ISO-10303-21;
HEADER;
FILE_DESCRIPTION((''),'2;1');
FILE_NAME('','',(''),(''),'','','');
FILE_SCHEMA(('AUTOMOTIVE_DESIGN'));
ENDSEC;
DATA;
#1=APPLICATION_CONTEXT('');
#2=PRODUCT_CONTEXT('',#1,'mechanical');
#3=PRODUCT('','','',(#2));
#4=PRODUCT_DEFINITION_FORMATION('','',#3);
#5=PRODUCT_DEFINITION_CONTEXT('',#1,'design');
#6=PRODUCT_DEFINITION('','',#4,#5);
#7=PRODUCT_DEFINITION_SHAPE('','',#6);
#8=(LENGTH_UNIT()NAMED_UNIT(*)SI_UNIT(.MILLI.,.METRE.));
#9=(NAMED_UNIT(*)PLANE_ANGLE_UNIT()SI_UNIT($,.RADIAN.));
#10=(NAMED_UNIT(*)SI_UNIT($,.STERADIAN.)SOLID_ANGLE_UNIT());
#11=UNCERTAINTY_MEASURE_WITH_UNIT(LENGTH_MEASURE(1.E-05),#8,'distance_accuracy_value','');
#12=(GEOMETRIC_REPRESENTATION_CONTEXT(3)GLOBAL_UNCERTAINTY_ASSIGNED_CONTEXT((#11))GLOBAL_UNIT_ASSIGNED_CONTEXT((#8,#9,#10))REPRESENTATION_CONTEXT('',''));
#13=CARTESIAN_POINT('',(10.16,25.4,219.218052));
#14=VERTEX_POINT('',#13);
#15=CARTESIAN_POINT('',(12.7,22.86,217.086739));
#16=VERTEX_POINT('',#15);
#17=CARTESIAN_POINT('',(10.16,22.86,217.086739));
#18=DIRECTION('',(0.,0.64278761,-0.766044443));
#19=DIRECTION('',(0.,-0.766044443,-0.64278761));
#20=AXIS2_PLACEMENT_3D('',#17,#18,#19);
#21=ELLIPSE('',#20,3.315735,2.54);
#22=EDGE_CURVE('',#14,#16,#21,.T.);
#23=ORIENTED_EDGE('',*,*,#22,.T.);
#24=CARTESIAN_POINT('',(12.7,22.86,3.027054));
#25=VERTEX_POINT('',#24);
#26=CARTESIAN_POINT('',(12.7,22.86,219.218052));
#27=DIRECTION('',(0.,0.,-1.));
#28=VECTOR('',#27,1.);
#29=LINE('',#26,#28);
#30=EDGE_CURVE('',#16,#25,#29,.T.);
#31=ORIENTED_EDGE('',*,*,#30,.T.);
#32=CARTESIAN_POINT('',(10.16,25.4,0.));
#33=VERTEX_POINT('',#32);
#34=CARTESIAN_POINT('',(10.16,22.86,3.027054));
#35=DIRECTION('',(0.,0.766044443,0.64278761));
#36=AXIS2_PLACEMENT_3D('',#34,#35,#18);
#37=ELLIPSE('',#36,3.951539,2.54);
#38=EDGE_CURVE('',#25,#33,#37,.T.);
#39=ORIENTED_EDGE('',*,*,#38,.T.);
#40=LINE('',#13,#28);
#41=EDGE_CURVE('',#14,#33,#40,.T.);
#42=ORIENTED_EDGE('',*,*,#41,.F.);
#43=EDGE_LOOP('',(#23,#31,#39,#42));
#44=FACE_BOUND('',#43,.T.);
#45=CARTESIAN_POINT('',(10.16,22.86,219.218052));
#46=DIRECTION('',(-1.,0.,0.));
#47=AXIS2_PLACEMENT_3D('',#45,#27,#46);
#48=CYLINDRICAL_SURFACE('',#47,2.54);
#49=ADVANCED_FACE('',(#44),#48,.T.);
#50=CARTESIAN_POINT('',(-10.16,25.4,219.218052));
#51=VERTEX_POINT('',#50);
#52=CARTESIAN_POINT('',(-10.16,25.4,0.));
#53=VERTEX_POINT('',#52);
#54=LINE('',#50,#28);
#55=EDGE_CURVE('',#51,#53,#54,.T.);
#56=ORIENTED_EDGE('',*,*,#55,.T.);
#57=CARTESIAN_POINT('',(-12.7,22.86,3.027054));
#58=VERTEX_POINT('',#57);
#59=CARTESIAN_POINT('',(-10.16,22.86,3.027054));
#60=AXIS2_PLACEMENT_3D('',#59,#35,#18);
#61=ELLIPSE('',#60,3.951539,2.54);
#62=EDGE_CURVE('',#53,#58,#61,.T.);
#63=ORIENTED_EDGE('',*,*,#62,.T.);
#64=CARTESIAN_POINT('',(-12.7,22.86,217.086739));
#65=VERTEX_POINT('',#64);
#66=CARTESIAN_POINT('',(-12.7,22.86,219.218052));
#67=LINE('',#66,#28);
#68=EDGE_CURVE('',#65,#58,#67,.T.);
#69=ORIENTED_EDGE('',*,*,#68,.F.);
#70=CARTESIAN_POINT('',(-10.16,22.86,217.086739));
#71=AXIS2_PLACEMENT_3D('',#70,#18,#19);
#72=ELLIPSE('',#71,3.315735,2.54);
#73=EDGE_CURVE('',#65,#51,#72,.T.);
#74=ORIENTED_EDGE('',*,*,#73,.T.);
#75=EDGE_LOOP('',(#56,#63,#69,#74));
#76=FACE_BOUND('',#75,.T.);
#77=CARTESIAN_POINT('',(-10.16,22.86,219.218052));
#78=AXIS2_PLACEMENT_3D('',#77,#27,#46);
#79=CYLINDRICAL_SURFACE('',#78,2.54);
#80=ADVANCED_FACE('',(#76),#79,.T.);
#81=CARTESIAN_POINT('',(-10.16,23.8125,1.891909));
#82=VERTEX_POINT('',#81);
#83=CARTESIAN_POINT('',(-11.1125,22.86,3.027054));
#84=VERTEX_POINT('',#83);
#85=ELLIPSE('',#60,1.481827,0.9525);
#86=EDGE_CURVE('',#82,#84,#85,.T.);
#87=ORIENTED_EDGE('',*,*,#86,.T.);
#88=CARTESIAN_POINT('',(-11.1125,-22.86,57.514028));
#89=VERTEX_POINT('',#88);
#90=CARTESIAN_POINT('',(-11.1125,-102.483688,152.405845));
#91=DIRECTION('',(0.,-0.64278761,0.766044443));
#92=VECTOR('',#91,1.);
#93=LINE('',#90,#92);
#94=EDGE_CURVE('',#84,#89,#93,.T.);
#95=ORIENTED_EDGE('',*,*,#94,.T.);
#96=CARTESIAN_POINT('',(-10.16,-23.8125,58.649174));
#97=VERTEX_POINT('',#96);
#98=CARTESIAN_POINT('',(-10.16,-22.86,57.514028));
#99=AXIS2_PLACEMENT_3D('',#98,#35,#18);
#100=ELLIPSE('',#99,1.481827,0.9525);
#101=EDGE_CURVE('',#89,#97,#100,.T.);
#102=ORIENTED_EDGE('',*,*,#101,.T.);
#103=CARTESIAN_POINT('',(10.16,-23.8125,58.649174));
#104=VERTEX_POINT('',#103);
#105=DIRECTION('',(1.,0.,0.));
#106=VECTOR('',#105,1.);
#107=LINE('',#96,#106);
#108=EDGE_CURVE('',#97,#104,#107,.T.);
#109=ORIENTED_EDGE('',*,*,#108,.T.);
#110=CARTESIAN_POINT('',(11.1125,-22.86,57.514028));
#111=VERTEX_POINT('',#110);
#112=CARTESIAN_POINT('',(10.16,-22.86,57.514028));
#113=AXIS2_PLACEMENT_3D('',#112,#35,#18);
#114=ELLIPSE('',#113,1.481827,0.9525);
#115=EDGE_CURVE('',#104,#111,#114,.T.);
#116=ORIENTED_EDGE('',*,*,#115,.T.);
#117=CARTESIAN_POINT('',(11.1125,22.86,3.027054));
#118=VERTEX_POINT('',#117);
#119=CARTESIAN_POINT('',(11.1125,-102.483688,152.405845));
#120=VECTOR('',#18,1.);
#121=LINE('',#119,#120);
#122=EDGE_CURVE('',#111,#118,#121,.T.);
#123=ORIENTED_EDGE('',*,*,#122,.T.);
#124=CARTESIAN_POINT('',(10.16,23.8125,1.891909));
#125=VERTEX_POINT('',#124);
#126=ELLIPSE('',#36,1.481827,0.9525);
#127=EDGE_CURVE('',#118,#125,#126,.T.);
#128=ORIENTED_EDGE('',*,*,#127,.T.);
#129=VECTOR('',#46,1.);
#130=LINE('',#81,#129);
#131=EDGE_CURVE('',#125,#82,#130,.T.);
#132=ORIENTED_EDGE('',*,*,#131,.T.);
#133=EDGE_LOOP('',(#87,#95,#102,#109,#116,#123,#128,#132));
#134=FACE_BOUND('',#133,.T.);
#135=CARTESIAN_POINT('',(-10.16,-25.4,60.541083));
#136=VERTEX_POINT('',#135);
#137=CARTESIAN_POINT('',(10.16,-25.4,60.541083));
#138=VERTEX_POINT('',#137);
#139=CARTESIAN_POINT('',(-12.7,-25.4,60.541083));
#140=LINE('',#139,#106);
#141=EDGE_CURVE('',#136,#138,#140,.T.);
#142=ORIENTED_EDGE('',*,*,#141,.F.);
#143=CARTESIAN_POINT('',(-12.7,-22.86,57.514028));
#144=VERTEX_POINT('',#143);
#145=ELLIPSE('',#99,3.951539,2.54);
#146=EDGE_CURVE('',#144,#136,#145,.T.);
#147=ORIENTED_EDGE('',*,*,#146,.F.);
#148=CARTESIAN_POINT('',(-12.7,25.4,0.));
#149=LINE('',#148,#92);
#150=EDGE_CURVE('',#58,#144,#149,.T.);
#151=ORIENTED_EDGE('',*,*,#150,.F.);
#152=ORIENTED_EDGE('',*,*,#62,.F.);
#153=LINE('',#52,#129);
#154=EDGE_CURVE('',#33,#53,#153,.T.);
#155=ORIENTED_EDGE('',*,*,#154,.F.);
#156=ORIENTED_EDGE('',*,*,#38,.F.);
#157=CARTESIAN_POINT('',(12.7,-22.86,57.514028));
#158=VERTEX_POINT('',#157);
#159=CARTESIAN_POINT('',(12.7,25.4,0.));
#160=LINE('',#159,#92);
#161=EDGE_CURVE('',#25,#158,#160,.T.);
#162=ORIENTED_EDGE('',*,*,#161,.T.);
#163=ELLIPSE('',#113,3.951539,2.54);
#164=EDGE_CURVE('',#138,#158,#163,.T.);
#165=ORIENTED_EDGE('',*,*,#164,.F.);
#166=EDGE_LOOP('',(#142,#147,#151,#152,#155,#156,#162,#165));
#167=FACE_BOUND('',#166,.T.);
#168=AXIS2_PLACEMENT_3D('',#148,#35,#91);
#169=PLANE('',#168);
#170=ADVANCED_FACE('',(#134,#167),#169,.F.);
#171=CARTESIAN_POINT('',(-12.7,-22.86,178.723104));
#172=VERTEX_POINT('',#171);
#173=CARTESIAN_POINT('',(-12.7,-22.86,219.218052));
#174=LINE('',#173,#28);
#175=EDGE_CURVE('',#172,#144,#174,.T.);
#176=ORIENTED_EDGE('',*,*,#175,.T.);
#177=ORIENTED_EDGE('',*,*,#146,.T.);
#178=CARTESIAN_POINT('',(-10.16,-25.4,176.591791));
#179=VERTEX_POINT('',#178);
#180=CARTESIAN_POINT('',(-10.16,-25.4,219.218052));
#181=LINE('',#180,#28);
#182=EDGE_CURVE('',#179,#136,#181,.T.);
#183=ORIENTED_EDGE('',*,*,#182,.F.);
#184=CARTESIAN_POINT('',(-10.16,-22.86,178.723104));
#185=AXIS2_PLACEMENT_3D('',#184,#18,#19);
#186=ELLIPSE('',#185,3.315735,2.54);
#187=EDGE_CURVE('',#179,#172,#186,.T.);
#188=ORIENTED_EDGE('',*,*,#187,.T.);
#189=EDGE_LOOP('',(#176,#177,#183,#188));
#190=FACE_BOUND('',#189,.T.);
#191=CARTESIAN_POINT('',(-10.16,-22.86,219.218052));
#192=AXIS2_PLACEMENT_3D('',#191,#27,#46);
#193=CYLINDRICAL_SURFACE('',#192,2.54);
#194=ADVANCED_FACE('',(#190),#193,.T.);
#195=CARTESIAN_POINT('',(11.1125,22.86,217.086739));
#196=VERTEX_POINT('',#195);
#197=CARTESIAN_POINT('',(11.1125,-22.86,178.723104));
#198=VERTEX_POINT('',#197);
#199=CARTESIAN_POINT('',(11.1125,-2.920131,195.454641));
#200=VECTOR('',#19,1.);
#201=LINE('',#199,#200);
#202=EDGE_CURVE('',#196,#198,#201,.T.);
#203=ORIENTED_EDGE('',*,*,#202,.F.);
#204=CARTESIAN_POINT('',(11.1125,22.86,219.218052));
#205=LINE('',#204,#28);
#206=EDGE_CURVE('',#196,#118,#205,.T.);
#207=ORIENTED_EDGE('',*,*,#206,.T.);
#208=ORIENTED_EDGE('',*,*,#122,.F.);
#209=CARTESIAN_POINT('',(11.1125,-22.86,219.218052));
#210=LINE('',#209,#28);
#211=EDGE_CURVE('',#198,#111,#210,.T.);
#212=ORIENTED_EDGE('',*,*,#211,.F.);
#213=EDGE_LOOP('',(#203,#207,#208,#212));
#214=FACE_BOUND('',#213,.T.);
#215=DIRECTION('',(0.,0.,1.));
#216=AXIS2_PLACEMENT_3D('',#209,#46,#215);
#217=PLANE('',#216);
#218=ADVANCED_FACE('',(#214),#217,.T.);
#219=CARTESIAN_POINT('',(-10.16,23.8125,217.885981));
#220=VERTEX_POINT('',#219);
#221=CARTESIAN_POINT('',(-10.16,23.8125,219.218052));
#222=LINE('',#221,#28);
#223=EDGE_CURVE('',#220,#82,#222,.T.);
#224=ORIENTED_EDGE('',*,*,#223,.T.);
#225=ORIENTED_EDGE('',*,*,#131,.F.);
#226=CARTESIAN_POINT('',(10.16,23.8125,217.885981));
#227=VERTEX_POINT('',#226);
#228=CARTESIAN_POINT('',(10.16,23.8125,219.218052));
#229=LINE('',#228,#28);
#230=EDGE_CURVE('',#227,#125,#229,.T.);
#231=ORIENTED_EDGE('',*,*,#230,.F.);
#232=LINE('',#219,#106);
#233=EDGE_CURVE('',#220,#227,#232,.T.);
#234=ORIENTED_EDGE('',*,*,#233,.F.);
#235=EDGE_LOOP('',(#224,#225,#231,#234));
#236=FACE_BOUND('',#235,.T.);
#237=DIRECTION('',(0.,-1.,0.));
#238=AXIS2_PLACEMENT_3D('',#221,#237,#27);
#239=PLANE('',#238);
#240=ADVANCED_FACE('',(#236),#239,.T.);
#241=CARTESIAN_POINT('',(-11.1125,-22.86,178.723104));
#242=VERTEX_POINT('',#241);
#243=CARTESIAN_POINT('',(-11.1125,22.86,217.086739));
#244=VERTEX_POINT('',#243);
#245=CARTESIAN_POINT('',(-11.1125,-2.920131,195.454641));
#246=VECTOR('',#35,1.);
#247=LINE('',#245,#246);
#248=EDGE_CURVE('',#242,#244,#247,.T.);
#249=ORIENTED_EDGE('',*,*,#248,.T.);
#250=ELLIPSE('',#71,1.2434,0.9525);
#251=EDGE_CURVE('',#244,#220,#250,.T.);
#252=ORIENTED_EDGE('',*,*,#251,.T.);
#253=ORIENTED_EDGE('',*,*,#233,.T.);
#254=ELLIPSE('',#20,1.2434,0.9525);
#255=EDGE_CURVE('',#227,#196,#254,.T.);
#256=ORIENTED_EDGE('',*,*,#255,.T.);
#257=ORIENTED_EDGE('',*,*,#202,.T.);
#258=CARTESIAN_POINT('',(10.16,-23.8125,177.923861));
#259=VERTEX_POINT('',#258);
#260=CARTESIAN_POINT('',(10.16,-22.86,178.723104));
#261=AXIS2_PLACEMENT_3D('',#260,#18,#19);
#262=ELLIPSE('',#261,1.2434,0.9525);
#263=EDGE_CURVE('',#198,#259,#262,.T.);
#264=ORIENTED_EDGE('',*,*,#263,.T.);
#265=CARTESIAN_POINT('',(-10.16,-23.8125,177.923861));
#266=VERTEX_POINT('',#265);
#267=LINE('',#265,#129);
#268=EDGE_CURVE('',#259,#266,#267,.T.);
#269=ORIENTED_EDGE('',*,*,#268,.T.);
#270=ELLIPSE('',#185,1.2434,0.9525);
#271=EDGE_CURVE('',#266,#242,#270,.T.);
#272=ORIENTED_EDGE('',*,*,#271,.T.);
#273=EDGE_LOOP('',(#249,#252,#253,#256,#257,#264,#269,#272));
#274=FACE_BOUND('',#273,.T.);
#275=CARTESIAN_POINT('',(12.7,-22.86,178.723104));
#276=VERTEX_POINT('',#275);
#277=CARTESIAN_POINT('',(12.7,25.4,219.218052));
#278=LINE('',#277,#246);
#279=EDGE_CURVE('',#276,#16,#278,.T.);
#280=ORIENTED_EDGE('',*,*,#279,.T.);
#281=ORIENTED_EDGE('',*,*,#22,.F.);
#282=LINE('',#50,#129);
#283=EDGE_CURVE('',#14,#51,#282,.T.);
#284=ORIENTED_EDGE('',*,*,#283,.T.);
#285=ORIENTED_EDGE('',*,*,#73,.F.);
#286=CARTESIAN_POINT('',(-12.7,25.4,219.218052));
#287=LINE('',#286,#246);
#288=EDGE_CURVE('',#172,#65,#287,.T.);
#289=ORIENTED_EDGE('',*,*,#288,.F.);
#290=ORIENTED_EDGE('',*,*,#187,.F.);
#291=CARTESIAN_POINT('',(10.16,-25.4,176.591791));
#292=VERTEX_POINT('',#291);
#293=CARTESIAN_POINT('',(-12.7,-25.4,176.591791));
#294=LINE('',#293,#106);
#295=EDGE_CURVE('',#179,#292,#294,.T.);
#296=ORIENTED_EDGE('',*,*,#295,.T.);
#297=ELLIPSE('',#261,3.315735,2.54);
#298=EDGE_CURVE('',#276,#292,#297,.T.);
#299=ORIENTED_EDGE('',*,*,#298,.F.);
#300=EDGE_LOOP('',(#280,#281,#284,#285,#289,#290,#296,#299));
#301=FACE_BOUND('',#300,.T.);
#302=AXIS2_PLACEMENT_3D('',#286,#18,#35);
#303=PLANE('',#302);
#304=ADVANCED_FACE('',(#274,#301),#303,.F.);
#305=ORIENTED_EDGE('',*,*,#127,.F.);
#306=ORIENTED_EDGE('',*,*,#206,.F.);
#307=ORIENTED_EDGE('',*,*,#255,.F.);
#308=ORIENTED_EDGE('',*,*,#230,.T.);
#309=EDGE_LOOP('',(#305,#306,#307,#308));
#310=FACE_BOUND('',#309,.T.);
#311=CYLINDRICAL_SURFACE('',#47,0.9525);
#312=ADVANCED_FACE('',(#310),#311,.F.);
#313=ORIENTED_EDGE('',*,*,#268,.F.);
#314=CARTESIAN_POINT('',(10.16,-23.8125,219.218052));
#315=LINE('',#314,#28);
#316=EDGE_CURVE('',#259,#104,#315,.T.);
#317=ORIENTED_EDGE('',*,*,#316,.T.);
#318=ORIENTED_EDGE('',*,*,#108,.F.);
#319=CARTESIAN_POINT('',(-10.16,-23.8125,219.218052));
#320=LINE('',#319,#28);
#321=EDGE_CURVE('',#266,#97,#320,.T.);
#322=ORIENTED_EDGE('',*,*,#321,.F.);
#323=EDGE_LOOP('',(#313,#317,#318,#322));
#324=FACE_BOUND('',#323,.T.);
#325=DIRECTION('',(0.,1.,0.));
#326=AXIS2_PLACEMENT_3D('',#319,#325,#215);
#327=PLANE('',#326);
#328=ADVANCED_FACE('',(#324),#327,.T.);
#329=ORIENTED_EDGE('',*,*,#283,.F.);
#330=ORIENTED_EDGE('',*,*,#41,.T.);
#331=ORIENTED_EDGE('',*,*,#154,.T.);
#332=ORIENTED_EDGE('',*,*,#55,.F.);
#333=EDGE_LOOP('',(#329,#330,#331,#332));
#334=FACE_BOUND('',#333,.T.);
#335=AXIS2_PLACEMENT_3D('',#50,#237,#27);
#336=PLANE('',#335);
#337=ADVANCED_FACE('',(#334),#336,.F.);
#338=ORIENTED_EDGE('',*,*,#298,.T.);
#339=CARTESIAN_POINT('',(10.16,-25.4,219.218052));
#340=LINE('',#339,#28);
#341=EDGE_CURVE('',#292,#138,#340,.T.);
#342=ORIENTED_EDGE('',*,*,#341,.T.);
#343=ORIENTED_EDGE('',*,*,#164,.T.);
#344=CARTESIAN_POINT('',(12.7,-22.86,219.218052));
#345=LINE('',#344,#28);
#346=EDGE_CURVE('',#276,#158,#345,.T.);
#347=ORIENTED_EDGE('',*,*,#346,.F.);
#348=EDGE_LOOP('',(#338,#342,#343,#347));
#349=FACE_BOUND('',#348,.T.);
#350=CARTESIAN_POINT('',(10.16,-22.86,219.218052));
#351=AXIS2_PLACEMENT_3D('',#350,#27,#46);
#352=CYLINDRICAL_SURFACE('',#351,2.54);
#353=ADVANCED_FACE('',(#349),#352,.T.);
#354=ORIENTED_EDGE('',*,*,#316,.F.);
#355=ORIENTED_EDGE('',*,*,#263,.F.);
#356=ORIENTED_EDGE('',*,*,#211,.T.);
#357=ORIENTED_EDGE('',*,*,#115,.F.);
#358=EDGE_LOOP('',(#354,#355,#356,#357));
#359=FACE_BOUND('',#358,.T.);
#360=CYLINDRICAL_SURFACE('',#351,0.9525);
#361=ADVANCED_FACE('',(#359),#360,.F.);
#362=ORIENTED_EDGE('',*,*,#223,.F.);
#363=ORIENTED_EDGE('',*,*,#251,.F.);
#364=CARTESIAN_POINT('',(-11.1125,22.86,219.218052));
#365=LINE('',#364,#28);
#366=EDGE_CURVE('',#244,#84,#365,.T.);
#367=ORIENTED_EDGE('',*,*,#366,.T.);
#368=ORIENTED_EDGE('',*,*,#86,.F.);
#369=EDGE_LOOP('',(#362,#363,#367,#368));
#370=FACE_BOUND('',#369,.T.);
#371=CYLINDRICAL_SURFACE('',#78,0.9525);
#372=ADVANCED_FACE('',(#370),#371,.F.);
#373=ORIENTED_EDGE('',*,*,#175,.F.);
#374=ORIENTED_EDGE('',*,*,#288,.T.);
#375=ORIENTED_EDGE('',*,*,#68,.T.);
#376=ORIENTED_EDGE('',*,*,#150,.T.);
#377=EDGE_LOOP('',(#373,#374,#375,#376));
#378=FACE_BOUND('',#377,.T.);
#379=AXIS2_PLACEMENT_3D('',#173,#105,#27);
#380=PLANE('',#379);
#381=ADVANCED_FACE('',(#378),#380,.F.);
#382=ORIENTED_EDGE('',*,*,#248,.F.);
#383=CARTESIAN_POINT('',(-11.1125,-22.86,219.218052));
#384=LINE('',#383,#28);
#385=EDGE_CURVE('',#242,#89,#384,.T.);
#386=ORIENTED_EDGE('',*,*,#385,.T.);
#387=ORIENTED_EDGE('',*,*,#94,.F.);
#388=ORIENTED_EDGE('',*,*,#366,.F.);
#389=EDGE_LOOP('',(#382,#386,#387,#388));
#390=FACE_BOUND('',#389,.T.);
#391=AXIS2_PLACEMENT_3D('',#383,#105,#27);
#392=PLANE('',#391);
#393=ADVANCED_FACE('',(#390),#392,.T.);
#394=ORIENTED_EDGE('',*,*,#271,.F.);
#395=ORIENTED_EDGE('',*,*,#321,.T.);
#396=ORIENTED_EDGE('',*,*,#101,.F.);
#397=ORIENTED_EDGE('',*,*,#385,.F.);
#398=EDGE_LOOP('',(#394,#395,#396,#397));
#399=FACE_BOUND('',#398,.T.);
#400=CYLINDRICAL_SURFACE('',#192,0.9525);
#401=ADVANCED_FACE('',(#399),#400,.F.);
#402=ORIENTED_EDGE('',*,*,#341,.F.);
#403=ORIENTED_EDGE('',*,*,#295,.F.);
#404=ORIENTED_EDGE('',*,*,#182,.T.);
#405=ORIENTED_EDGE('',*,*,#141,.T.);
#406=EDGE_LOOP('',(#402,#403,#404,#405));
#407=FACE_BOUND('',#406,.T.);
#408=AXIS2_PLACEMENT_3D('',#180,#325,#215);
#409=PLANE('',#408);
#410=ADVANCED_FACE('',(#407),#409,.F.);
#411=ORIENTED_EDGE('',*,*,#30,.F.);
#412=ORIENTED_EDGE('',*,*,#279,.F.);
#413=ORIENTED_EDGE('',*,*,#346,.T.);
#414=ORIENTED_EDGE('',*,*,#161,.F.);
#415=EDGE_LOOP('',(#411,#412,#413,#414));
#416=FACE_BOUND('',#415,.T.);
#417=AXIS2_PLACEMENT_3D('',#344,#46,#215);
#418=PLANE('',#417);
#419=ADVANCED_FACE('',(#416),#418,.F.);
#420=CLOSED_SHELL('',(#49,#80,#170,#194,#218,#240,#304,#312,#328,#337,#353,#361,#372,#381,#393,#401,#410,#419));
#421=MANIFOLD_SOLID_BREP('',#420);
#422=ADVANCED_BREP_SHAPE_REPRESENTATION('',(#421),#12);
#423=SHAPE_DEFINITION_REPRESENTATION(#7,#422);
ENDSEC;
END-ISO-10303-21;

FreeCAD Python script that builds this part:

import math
import FreeCAD as App
import Part
import Sketcher
Q = App.Units.Quantity


def add_polygon(sketch, points):
    """Adds a closed chain of lines whose ends are joined by coincident constraints."""
    first, n = sketch.GeometryCount, len(points)
    for a, b in zip(points, points[1:] + points[:1]):
        sketch.addGeometry(Part.LineSegment(App.Vector(*a, 0), App.Vector(*b, 0)), False)
    for i in range(n):
        sketch.addConstraint(Sketcher.Constraint("Coincident", first + i, 2, first + (i + 1) % n, 1))

doc = App.newDocument("Part")
body = doc.addObject("PartDesign::Body", "Body")

sketch1 = doc.addObject("Sketcher::SketchObject", "Sketch")
body.addObject(sketch1)
sketch1.AttachmentSupport = (doc.XY_Plane, [""])
sketch1.MapMode = "FlatFace"
sketch1.addGeometry(Part.LineSegment(App.Vector(-12.7, 22.9, 0), App.Vector(-12.7, -22.9, 0)), False)
sketch1.addGeometry(Part.ArcOfCircle(Part.Circle(App.Vector(-10.2, -22.9, 0), App.Vector(0, 0, 1), 2.5), math.radians(-180), math.radians(-90)), False)
sketch1.addGeometry(Part.LineSegment(App.Vector(-10.2, -25.4, 0), App.Vector(10.2, -25.4, 0)), False)
sketch1.addGeometry(Part.ArcOfCircle(Part.Circle(App.Vector(10.2, -22.9, 0), App.Vector(0, 0, 1), 2.5), math.radians(-90), math.radians(0)), False)
sketch1.addGeometry(Part.LineSegment(App.Vector(12.7, -22.9, 0), App.Vector(12.7, 22.9, 0)), False)
sketch1.addGeometry(Part.ArcOfCircle(Part.Circle(App.Vector(10.2, 22.9, 0), App.Vector(0, 0, 1), 2.5), math.radians(0), math.radians(90)), False)
sketch1.addGeometry(Part.LineSegment(App.Vector(10.2, 25.4, 0), App.Vector(-10.2, 25.4, 0)), False)
sketch1.addGeometry(Part.ArcOfCircle(Part.Circle(App.Vector(-10.2, 22.9, 0), App.Vector(0, 0, 1), 2.5), math.radians(90), math.radians(180)), False)
sketch1.addGeometry(Part.LineSegment(App.Vector(-11.1, -22.9, 0), App.Vector(-11.1, 22.9, 0)), False)
sketch1.addGeometry(Part.ArcOfCircle(Part.Circle(App.Vector(-10.2, 22.9, 0), App.Vector(0, 0, 1), 1), math.radians(90), math.radians(180)), False)
sketch1.addGeometry(Part.LineSegment(App.Vector(-10.2, 23.8, 0), App.Vector(10.2, 23.8, 0)), False)
sketch1.addGeometry(Part.ArcOfCircle(Part.Circle(App.Vector(10.2, 22.9, 0), App.Vector(0, 0, 1), 1), math.radians(0), math.radians(90)), False)
sketch1.addGeometry(Part.LineSegment(App.Vector(11.1, 22.9, 0), App.Vector(11.1, -22.9, 0)), False)
sketch1.addGeometry(Part.ArcOfCircle(Part.Circle(App.Vector(10.2, -22.9, 0), App.Vector(0, 0, 1), 1), math.radians(-90), math.radians(0)), False)
sketch1.addGeometry(Part.LineSegment(App.Vector(10.2, -23.8, 0), App.Vector(-10.2, -23.8, 0)), False)
sketch1.addGeometry(Part.ArcOfCircle(Part.Circle(App.Vector(-10.2, -22.9, 0), App.Vector(0, 0, 1), 1), math.radians(180), math.radians(270)), False)
sketch1.addConstraint(Sketcher.Constraint("Tangent", 0, 2, 1, 1))
sketch1.addConstraint(Sketcher.Constraint("Tangent", 1, 2, 2, 1))
sketch1.addConstraint(Sketcher.Constraint("Tangent", 2, 2, 3, 1))
sketch1.addConstraint(Sketcher.Constraint("Tangent", 3, 2, 4, 1))
sketch1.addConstraint(Sketcher.Constraint("Tangent", 4, 2, 5, 1))
sketch1.addConstraint(Sketcher.Constraint("Tangent", 5, 2, 6, 1))
sketch1.addConstraint(Sketcher.Constraint("Tangent", 6, 2, 7, 1))
sketch1.addConstraint(Sketcher.Constraint("Tangent", 7, 2, 0, 1))
sketch1.addConstraint(Sketcher.Constraint("Tangent", 8, 2, 9, 2))
sketch1.addConstraint(Sketcher.Constraint("Tangent", 9, 1, 10, 1))
sketch1.addConstraint(Sketcher.Constraint("Tangent", 10, 2, 11, 2))
sketch1.addConstraint(Sketcher.Constraint("Tangent", 11, 1, 12, 1))
sketch1.addConstraint(Sketcher.Constraint("Tangent", 12, 2, 13, 2))
sketch1.addConstraint(Sketcher.Constraint("Tangent", 13, 1, 14, 1))
sketch1.addConstraint(Sketcher.Constraint("Tangent", 14, 2, 15, 2))
sketch1.addConstraint(Sketcher.Constraint("Tangent", 15, 1, 8, 1))
sketch1.addConstraint(Sketcher.Constraint("Vertical", 0))
sketch1.addConstraint(Sketcher.Constraint("Horizontal", 2))
sketch1.addConstraint(Sketcher.Constraint("Vertical", 4))
sketch1.addConstraint(Sketcher.Constraint("Horizontal", 6))
sketch1.addConstraint(Sketcher.Constraint("Vertical", 8))
sketch1.addConstraint(Sketcher.Constraint("Horizontal", 10))
sketch1.addConstraint(Sketcher.Constraint("Vertical", 12))
sketch1.addConstraint(Sketcher.Constraint("Horizontal", 14))
sketch1.addConstraint(Sketcher.Constraint("Coincident", 9, 3, 7, 3))
sketch1.addConstraint(Sketcher.Constraint("Coincident", 11, 3, 5, 3))
sketch1.addConstraint(Sketcher.Constraint("Coincident", 13, 3, 3, 3))
sketch1.addConstraint(Sketcher.Constraint("Equal", 1, 3))
sketch1.addConstraint(Sketcher.Constraint("Equal", 3, 5))
sketch1.addConstraint(Sketcher.Constraint("Equal", 5, 7))
sketch1.addConstraint(Sketcher.Constraint("Equal", 13, 15))
sketch1.addConstraint(Sketcher.Constraint("Symmetric", 1, 3, 5, 3, -1, 1))
sketch1.addConstraint(Sketcher.Constraint("Radius", 1, Q("0.1 in")))
sketch1.addConstraint(Sketcher.Constraint("DistanceX", 2, 1, 2, 2, Q("0.8 in")))
sketch1.addConstraint(Sketcher.Constraint("DistanceY", 0, 2, 0, 1, Q("1.8 in")))
sketch1.addConstraint(Sketcher.Constraint("Radius", 9, Q("0.0375 in")))
pad1 = doc.addObject("PartDesign::Pad", "Pad")
body.addObject(pad1)
pad1.Profile = sketch1
pad1.Length = 219.218052

sketch2 = doc.addObject("Sketcher::SketchObject", "Sketch001")
body.addObject(sketch2)
sketch2.AttachmentSupport = (doc.YZ_Plane, [""])
sketch2.MapMode = "FlatFace"
sketch2.AttachmentOffset = App.Placement(App.Vector(0, 0, 0.5 * 25.4), App.Rotation())
add_polygon(sketch2, [(-25, 177), (25, 219), (-25, 219)])
add_polygon(sketch2, [(25, 0), (-25, 61), (-25, 0)])
sketch2.addConstraint(Sketcher.Constraint("Horizontal", 1))
sketch2.addConstraint(Sketcher.Constraint("Vertical", 2))
sketch2.addConstraint(Sketcher.Constraint("Vertical", 4))
sketch2.addConstraint(Sketcher.Constraint("Horizontal", 5))
sketch2.addConstraint(Sketcher.Constraint("Symmetric", 4, 2, 5, 2, -1, 1))
sketch2.addConstraint(Sketcher.Constraint("Perpendicular", 0, 3))
sketch2.addConstraint(Sketcher.Constraint("Vertical", 2, 2, 3, 2))
sketch2.addConstraint(Sketcher.Constraint("Vertical", 0, 2, 5, 2))
sketch2.addConstraint(Sketcher.Constraint("DistanceX", 1, 2, 1, 1, Q("2 in")))
sketch2.addConstraint(Sketcher.Constraint("Angle", 0, Q("40 deg")))
sketch2.addConstraint(Sketcher.Constraint("DistanceY", -1, 1, 0, 2, Q("219.218052 mm")))
pocket1 = doc.addObject("PartDesign::Pocket", "Pocket")
body.addObject(pocket1)
pocket1.Profile = sketch2
pocket1.Type = "ThroughAll"

doc.recompute()
